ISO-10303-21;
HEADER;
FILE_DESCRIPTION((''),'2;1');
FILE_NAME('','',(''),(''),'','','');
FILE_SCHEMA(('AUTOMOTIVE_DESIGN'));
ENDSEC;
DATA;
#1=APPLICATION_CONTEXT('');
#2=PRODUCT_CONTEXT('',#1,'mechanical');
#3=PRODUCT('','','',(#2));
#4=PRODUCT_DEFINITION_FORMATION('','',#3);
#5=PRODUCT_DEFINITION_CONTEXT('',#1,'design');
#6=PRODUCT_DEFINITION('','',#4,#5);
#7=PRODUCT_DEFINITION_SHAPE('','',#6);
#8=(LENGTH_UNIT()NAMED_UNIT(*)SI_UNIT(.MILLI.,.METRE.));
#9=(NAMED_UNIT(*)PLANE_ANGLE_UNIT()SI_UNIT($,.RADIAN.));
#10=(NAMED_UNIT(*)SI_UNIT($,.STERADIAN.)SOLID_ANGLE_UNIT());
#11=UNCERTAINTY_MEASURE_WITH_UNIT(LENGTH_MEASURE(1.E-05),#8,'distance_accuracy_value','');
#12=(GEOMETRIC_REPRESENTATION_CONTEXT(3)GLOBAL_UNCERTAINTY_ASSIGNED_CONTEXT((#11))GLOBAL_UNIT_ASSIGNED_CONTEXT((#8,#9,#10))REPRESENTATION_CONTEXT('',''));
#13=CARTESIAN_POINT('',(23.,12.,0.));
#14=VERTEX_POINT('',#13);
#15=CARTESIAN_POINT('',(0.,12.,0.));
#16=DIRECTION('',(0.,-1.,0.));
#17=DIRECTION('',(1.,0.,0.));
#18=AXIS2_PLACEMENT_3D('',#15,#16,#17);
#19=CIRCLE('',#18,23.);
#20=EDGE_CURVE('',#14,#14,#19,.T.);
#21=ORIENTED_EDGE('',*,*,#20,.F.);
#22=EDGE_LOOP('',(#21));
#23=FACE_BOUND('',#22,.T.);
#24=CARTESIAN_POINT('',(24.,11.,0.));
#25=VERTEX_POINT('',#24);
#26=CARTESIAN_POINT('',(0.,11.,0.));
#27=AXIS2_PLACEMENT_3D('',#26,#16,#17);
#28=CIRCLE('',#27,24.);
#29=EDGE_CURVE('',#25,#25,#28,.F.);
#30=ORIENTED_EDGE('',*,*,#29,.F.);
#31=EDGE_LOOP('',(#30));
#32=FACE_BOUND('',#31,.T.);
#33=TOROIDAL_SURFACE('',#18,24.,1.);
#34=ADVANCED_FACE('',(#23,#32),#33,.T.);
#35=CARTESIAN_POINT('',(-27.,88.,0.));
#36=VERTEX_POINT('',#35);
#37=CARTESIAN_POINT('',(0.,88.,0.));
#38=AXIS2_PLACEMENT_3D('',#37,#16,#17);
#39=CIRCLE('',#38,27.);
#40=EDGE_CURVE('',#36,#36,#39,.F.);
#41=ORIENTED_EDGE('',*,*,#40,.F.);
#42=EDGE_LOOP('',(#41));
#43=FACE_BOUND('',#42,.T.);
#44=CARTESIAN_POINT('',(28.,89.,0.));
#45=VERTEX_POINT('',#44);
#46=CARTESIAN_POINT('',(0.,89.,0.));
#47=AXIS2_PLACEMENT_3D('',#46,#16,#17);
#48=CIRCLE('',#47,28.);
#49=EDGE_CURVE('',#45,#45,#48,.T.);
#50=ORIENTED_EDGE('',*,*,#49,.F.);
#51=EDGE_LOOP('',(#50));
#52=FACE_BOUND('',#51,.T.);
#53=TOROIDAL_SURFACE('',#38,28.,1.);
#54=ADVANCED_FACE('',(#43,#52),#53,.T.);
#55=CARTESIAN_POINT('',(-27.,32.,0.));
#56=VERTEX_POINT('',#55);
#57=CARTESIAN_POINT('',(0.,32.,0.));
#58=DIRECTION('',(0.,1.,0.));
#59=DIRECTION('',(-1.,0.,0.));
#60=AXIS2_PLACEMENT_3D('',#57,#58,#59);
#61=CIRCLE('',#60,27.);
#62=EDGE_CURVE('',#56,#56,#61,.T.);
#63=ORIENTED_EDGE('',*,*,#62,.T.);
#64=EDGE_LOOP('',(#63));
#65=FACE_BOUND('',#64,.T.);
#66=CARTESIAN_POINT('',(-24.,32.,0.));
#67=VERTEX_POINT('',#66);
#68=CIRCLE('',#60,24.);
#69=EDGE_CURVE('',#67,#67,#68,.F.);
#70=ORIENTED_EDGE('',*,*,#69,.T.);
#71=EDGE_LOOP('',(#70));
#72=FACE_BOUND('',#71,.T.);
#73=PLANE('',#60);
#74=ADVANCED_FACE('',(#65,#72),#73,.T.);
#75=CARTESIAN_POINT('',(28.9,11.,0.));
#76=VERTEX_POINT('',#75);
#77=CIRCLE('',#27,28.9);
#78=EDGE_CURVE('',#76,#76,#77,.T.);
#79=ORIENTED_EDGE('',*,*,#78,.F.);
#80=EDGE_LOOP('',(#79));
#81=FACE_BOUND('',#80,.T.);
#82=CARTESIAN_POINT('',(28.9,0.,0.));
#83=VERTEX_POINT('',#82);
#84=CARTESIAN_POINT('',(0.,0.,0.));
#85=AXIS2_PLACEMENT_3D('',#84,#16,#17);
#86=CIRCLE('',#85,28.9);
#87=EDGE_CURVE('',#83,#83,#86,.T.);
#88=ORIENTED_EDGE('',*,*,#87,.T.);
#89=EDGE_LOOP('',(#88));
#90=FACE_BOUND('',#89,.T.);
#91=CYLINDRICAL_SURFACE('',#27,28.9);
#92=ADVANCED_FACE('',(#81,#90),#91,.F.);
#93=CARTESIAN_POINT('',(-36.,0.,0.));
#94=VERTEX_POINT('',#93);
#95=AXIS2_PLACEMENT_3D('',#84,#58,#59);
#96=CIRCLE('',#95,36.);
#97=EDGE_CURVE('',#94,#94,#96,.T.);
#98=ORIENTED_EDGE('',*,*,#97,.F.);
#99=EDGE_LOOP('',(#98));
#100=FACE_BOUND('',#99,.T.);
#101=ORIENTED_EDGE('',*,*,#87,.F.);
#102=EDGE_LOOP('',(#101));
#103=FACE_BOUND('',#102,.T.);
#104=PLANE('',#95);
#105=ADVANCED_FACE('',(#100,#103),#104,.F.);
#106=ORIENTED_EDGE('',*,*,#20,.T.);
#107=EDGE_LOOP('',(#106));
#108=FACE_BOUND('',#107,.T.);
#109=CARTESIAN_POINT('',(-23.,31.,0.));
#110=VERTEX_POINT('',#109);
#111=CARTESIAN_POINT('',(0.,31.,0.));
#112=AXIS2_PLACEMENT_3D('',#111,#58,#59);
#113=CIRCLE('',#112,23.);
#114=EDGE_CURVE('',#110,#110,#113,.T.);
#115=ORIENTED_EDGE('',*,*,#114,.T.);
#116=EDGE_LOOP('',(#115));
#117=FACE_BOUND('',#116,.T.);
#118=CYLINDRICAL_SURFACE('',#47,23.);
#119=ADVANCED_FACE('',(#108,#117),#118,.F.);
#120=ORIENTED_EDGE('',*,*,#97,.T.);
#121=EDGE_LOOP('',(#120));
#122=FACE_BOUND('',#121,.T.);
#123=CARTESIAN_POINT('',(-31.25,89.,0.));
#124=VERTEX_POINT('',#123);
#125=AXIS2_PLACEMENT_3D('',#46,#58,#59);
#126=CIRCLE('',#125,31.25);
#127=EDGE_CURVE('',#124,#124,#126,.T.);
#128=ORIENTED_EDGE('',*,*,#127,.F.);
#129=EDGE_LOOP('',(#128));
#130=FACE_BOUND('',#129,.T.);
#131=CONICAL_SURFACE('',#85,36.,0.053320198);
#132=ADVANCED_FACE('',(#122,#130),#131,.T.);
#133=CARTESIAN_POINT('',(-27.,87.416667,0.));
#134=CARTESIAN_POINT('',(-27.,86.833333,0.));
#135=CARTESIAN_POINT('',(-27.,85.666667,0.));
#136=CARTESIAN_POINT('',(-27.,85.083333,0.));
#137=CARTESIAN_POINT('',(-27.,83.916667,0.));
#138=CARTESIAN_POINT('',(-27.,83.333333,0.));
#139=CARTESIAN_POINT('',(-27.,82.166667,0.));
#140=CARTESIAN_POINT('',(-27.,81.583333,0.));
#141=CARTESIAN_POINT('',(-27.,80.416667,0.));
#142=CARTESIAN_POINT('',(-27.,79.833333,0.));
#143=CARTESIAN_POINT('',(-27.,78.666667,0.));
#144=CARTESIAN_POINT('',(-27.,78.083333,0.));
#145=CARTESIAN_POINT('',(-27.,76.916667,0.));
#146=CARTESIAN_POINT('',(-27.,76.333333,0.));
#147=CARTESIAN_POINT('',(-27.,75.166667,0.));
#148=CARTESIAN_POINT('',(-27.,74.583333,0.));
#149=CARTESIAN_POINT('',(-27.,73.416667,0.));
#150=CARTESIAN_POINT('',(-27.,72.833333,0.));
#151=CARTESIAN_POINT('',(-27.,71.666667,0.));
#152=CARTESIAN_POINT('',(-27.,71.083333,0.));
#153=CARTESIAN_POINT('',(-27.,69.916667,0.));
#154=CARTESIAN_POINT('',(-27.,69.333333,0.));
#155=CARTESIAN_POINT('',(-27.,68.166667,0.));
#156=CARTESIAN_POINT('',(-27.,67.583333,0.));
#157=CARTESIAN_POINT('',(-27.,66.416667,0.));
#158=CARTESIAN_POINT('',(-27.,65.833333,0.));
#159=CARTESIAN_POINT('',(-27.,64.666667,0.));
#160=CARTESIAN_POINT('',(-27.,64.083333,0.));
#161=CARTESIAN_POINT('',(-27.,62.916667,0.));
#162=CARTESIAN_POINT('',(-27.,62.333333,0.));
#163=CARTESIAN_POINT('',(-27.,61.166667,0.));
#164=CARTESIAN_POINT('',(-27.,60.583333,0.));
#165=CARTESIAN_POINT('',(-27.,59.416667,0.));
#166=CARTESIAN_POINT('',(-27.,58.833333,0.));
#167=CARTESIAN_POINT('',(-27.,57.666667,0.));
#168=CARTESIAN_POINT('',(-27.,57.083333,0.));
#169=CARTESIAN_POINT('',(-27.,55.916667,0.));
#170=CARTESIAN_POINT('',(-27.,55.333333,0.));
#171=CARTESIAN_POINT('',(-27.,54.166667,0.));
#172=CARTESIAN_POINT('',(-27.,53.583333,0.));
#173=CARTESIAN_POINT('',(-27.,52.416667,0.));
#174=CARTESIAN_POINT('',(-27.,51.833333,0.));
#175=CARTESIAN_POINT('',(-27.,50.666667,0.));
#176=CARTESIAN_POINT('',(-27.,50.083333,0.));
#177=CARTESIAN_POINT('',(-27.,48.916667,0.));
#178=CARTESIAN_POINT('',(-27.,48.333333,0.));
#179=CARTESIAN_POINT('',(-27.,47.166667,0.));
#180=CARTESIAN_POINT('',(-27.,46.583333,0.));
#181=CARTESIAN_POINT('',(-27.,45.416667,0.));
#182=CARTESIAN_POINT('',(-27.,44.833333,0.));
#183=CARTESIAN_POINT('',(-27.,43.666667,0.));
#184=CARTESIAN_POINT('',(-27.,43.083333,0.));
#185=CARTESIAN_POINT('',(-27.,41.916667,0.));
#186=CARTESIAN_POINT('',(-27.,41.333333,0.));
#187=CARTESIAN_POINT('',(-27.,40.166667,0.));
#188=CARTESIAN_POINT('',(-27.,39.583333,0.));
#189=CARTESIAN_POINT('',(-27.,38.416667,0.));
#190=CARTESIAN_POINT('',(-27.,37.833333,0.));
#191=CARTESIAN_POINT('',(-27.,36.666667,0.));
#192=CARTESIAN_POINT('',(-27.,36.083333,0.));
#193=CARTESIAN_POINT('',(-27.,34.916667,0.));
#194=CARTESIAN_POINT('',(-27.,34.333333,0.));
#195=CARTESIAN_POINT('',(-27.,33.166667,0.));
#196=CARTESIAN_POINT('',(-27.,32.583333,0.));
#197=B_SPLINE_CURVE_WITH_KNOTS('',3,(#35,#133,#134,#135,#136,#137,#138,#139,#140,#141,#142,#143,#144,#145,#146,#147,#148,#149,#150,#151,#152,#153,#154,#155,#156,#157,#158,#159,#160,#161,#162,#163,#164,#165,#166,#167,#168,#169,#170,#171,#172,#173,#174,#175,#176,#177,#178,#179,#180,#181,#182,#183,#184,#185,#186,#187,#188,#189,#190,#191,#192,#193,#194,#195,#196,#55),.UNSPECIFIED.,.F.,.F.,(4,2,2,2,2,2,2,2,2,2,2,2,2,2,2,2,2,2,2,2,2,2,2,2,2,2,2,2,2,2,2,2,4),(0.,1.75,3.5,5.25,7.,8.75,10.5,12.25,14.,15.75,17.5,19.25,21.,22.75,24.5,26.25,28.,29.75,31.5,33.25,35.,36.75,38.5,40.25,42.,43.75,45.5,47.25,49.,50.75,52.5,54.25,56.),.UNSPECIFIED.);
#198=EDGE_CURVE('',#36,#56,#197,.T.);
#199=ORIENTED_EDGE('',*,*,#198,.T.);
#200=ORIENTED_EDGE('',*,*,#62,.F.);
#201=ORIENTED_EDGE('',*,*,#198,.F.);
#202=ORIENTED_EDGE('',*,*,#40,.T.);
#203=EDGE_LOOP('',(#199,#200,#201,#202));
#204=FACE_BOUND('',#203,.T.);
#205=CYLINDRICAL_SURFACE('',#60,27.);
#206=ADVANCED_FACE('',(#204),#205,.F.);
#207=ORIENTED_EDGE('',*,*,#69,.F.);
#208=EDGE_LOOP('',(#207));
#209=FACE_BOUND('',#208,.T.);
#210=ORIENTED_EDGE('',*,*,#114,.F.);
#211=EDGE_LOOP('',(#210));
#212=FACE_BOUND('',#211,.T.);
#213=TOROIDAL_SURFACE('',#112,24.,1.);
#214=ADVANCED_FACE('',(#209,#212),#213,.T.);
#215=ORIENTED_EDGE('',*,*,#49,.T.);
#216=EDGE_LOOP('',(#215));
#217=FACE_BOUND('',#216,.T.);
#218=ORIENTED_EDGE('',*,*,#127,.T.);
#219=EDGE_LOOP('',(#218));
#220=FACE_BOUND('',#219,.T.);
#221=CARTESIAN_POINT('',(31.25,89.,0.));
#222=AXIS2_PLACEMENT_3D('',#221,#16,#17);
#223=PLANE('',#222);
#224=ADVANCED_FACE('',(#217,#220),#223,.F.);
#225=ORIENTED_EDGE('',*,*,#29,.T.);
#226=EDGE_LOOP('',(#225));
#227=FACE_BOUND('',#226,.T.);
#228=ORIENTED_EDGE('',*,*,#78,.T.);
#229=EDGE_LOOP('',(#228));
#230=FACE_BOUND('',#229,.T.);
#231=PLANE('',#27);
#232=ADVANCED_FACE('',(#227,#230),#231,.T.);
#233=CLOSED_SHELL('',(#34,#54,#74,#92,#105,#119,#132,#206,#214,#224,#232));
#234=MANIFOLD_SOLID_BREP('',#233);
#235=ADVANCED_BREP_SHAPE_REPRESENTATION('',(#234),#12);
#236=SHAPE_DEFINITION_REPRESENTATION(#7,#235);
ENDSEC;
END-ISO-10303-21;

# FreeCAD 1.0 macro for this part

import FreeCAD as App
import Part
import Sketcher
from FreeCAD import Vector
Q = App.Units.Quantity


def edges_at(feature, points):
    """Names of the edges that pass closest to the given points."""
    edges = feature.Shape.Edges
    near = lambda p: min(range(len(edges)), key=lambda i: edges[i].distToShape(Part.Vertex(*p))[0])
    return sorted({f"Edge{near(p) + 1}" for p in points})


def add_polygon(sketch, points):
    """Adds a closed chain of lines whose ends are joined by coincident constraints."""
    first, n = sketch.GeometryCount, len(points)
    for a, b in zip(points, points[1:] + points[:1]):
        sketch.addGeometry(Part.LineSegment(App.Vector(*a, 0), App.Vector(*b, 0)), False)
    for i in range(n):
        sketch.addConstraint(Sketcher.Constraint("Coincident", first + i, 2, first + (i + 1) % n, 1))

doc = App.newDocument("Part")
body = doc.addObject("PartDesign::Body", "Body")

sketch1 = body.newObject("Sketcher::SketchObject", "Sketch")
sketch1.AttachmentSupport = (doc.getObject("XY_Plane"), [""])
sketch1.MapMode = "FlatFace"
add_polygon(sketch1, [(0, 0), (36, 0), (31.25, 89), (0, 89)])
sketch1.addConstraint([
    Sketcher.Constraint("Horizontal", 0),
    Sketcher.Constraint("Horizontal", 2),
    Sketcher.Constraint("Vertical", 3),
    Sketcher.Constraint("Coincident", 3, 2, -1, 1),
    Sketcher.Constraint("DistanceX", 0, 1, 0, 2, Q("36 mm")),
    Sketcher.Constraint("DistanceY", 3, 2, 3, 1, Q("89 mm")),
    Sketcher.Constraint("DistanceX", 2, 2, 2, 1, Q("31.25 mm")),
])
revolution = body.newObject("PartDesign::Revolution", "Revolution")
revolution.Profile = sketch1
revolution.ReferenceAxis = (sketch1, ["V_Axis"])
revolution.Angle = 360

sketch2 = body.newObject("Sketcher::SketchObject", "Sketch001")
sketch2.AttachmentSupport = (doc.getObject("XZ_Plane"), [""])
sketch2.MapMode = "FlatFace"
sketch2.AttachmentOffset = App.Placement(Vector(0, 0, -89), App.Rotation())
sketch2.addGeometry(Part.Circle(Vector(0, 0, 0), Vector(0, 0, 1), 27), False)
sketch2.addConstraint([
    Sketcher.Constraint("Coincident", 0, 3, -1, 1),
    Sketcher.Constraint("Diameter", 0, Q("54 mm")),
])
pocket1 = body.newObject("PartDesign::Pocket", "Pocket")
pocket1.Profile = sketch2
pocket1.Length = 57
pocket1.Reversed = True

sketch3 = body.newObject("Sketcher::SketchObject", "Sketch002")
sketch3.AttachmentSupport = (doc.getObject("XZ_Plane"), [""])
sketch3.MapMode = "FlatFace"
sketch3.addGeometry(Part.Circle(Vector(0, 0, 0), Vector(0, 0, 1), 28.9), False)
sketch3.addConstraint([
    Sketcher.Constraint("Coincident", 0, 3, -1, 1),
    Sketcher.Constraint("Diameter", 0, Q("57.8 mm")),
])
pocket2 = body.newObject("PartDesign::Pocket", "Pocket001")
pocket2.Profile = sketch3
pocket2.Length = 11

sketch4 = body.newObject("Sketcher::SketchObject", "Sketch003")
sketch4.AttachmentSupport = (doc.getObject("XZ_Plane"), [""])
sketch4.MapMode = "FlatFace"
sketch4.AttachmentOffset = App.Placement(Vector(0, 0, -11), App.Rotation())
sketch4.addGeometry(Part.Circle(Vector(0, 0, 0), Vector(0, 0, 1), 23), False)
sketch4.addConstraint([
    Sketcher.Constraint("Coincident", 0, 3, -1, 1),
    Sketcher.Constraint("Diameter", 0, Q("46 mm")),
])
pocket3 = body.newObject("PartDesign::Pocket", "Pocket002")
pocket3.Profile = sketch4
pocket3.Type = "ThroughAll"
doc.recompute()

fillet = body.newObject("PartDesign::Fillet", "Fillet")
fillet.Base = (pocket3, edges_at(pocket3, [(27, 89, 0)]))
fillet.Radius = 1
doc.recompute()

fillet2 = body.newObject("PartDesign::Fillet", "Fillet001")
fillet2.Base = (fillet, edges_at(fillet, [(-23, 32, 0), (-23, 11, 0)]))
fillet2.Radius = 1

doc.recompute()
